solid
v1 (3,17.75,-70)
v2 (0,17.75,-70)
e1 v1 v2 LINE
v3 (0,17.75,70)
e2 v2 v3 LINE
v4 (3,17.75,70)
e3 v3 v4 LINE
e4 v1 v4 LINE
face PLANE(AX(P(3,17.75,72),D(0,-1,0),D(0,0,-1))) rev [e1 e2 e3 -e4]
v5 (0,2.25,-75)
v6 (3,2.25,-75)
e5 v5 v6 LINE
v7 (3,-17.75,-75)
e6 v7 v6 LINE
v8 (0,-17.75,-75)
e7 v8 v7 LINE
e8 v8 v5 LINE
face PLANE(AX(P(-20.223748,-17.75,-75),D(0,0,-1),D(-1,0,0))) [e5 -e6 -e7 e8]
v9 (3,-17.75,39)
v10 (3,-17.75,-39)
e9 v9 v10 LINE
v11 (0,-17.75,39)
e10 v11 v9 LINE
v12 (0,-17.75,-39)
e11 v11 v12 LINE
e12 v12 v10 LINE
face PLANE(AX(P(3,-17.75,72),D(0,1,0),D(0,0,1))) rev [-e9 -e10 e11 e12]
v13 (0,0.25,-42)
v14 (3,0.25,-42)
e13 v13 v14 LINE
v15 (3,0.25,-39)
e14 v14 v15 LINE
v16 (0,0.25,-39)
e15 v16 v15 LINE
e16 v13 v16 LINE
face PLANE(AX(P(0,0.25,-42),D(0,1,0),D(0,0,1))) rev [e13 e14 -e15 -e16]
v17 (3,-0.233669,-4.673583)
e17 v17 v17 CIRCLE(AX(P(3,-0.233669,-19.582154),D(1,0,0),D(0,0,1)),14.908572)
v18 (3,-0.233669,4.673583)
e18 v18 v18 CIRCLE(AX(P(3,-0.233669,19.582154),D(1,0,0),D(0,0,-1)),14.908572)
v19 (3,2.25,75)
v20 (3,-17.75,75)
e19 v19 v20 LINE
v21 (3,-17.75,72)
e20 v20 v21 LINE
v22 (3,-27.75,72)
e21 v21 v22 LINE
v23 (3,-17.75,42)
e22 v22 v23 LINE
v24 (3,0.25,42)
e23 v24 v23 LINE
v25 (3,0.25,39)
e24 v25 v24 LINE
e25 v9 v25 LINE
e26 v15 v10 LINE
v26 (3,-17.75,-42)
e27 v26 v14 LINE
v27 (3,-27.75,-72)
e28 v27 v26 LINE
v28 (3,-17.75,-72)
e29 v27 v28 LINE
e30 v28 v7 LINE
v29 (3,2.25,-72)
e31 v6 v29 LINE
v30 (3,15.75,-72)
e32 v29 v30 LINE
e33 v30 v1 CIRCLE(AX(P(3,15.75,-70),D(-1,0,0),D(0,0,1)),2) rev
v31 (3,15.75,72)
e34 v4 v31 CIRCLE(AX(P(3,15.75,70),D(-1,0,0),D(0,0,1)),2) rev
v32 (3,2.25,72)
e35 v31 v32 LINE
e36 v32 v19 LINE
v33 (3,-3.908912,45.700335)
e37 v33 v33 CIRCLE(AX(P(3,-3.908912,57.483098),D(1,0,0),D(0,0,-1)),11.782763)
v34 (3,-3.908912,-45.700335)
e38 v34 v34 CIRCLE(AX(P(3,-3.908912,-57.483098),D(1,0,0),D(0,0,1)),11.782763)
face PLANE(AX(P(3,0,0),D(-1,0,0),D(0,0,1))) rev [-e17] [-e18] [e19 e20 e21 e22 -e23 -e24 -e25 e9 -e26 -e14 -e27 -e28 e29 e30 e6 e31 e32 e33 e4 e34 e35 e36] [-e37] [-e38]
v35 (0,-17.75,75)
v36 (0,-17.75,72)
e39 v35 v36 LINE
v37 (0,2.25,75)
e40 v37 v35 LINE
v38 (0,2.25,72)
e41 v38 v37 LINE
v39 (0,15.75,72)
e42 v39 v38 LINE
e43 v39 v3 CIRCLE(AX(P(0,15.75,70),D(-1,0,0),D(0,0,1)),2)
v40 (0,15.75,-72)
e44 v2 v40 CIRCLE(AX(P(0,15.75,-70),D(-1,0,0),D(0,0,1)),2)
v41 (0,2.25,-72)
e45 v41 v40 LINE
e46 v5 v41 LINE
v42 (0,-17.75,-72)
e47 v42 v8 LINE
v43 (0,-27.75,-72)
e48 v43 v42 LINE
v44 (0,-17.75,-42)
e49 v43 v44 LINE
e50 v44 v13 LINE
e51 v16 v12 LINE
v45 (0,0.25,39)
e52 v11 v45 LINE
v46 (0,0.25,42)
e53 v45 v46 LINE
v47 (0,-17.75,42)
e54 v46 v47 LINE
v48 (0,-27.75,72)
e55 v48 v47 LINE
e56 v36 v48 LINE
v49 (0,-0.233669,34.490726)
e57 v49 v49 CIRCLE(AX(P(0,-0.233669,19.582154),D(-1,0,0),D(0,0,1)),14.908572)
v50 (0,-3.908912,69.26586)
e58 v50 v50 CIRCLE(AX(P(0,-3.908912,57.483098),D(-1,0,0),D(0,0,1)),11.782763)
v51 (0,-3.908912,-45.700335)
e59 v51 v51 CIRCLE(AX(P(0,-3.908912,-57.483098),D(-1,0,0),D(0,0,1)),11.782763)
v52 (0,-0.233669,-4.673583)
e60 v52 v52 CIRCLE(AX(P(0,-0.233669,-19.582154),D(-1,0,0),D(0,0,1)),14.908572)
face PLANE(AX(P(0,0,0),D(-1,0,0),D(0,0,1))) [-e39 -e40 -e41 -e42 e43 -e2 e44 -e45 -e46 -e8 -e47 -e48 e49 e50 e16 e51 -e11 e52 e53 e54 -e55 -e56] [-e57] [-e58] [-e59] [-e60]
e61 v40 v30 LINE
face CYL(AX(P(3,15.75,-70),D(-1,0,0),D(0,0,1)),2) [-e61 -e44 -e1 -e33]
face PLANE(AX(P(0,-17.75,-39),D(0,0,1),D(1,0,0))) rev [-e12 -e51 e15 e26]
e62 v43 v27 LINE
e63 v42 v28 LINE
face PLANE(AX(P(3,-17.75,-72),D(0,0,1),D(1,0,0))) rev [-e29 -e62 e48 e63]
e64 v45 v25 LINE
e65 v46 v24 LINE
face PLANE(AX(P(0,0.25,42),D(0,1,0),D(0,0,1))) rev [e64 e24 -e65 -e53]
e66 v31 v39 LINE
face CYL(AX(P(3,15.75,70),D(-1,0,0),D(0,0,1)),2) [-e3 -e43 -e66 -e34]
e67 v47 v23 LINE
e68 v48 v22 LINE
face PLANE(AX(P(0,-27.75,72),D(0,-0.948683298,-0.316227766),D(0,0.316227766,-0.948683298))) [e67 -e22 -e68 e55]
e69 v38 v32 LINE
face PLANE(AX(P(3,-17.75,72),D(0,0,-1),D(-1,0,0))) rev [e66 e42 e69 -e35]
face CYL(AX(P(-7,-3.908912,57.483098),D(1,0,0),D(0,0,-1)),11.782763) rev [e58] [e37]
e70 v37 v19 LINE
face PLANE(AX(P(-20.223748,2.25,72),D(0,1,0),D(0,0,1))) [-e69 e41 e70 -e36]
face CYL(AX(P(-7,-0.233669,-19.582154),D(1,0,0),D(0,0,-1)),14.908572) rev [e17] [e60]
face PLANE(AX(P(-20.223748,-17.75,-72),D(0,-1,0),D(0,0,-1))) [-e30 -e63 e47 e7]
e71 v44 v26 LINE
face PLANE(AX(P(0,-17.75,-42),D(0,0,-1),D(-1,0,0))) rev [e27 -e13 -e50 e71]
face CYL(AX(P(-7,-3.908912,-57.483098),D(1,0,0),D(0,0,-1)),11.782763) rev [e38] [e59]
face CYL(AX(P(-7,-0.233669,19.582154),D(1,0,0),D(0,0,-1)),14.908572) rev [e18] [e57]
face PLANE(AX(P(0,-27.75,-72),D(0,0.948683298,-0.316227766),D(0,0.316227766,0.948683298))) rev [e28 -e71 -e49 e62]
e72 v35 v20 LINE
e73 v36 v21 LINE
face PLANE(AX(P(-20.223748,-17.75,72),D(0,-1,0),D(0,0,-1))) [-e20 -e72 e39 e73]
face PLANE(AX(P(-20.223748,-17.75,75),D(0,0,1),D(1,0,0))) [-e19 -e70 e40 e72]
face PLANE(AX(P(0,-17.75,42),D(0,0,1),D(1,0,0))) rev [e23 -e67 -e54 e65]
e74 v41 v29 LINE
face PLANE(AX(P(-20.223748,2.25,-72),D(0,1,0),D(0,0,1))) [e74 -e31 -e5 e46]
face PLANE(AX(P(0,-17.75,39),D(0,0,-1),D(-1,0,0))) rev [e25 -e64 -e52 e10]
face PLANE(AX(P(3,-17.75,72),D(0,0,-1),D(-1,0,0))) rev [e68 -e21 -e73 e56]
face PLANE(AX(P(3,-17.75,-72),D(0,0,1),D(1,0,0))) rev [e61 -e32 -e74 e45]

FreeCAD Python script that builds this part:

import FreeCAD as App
import Part
import Sketcher

V = App.Vector


def edges_at(feature, points):
    """Names of the edges that pass closest to the given points."""
    edges = feature.Shape.Edges
    near = lambda p: min(range(len(edges)), key=lambda i: edges[i].distToShape(Part.Vertex(*p))[0])
    return sorted({f"Edge{near(p) + 1}" for p in points})


def add_polygon(sketch, points):
    """Adds a closed chain of lines whose ends are joined by coincident constraints."""
    first, n = sketch.GeometryCount, len(points)
    for a, b in zip(points, points[1:] + points[:1]):
        sketch.addGeometry(Part.LineSegment(App.Vector(*a, 0), App.Vector(*b, 0)), False)
    for i in range(n):
        sketch.addConstraint(Sketcher.Constraint("Coincident", first + i, 2, first + (i + 1) % n, 1))

doc = App.newDocument("Part")
body = doc.addObject("PartDesign::Body", "Body")

sketch1 = body.newObject("Sketcher::SketchObject", "Sketch")
sketch1.AttachmentSupport = (doc.getObject("YZ_Plane"), [""])
sketch1.MapMode = "FlatFace"
add_polygon(sketch1, [(18, 72), (-18, 72), (-18, -72), (18, -72)])
sketch1.addConstraint(Sketcher.Constraint("Horizontal", 0))
sketch1.addConstraint(Sketcher.Constraint("Vertical", 1))
sketch1.addConstraint(Sketcher.Constraint("Horizontal", 2))
sketch1.addConstraint(Sketcher.Constraint("Vertical", 3))
sketch1.addConstraint(Sketcher.Constraint("Symmetric", 0, 2, 2, 2, -1, 1))
sketch1.addConstraint(Sketcher.Constraint("DistanceY", 1, 2, 1, 1, 144.0))
sketch1.addConstraint(Sketcher.Constraint("DistanceX", 0, 2, 0, 1, 35.5))
pad1 = body.newObject("PartDesign::Pad", "Pad")
pad1.Profile = sketch1
pad1.Length = 3
doc.recompute()

fillet = body.newObject("PartDesign::Fillet", "Fillet")
fillet.Base = (pad1, edges_at(pad1, [(1.5, 17.75, 72), (1.5, 17.75, -72)]))
fillet.Radius = 2

sketch2 = body.newObject("Sketcher::SketchObject", "Sketch001")
sketch2.AttachmentSupport = (doc.getObject("YZ_Plane"), [""])
sketch2.MapMode = "FlatFace"
sketch2.AttachmentOffset = App.Placement(V(0, 0, 3), App.Rotation())
add_polygon(sketch2, [(0.2, 42), (-17.8, 42), (-17.8, 39), (0.2, 39)])
add_polygon(sketch2, [(0.2, -39), (-17.8, -39), (-17.8, -42), (0.2, -42)])
sketch2.addConstraint(Sketcher.Constraint("Horizontal", 0))
sketch2.addConstraint(Sketcher.Constraint("Vertical", 1))
sketch2.addConstraint(Sketcher.Constraint("Horizontal", 2))
sketch2.addConstraint(Sketcher.Constraint("Vertical", 3))
sketch2.addConstraint(Sketcher.Constraint("Horizontal", 4))
sketch2.addConstraint(Sketcher.Constraint("Vertical", 5))
sketch2.addConstraint(Sketcher.Constraint("Horizontal", 6))
sketch2.addConstraint(Sketcher.Constraint("Vertical", 7))
sketch2.addConstraint(Sketcher.Constraint("Symmetric", 1, 2, 4, 2, -1))
sketch2.addConstraint(Sketcher.Constraint("Symmetric", 3, 2, 6, 2, -1))
sketch2.addConstraint(Sketcher.Constraint("DistanceX", 0, 2, 0, 1, 18.0))
sketch2.addConstraint(Sketcher.Constraint("DistanceY", 1, 2, 1, 1, 3.0))
sketch2.addConstraint(Sketcher.Constraint("DistanceY", -1, 1, 0, 2, 42.0))
sketch2.addConstraint(Sketcher.Constraint("DistanceX", 0, 2, -1, 1, 17.75))
pocket1 = body.newObject("PartDesign::Pocket", "Pocket")
pocket1.Profile = sketch2
pocket1.Length = 3

sketch3 = body.newObject("Sketcher::SketchObject", "Sketch002")
sketch3.AttachmentSupport = (doc.getObject("YZ_Plane"), [""])
sketch3.MapMode = "FlatFace"
sketch3.AttachmentOffset = App.Placement(V(0, 0, 3), App.Rotation())
add_polygon(sketch3, [(-18, 72), (-28, 72), (-18, 42)])
sketch3.addConstraint(Sketcher.Constraint("Horizontal", 0))
sketch3.addConstraint(Sketcher.Constraint("Vertical", 2))
sketch3.addConstraint(Sketcher.Constraint("DistanceX", 0, 2, 0, 1, 10.0))
sketch3.addConstraint(Sketcher.Constraint("DistanceY", 2, 1, 2, 2, 30.0))
sketch3.addConstraint(Sketcher.Constraint("DistanceY", -1, 1, 0, 2, 72.0))
sketch3.addConstraint(Sketcher.Constraint("DistanceX", 0, 2, -1, 1, 27.75))
pad2 = body.newObject("PartDesign::Pad", "Pad001")
pad2.Profile = sketch3
pad2.Length = 3
pad2.Reversed = True
doc.recompute()

mirrored = body.newObject("PartDesign::Mirrored", "Mirrored")
mirrored.Originals = [pad2]
mirrored.MirrorPlane = (doc.getObject("XY_Plane"), [""])
body.Tip = mirrored

sketch4 = body.newObject("Sketcher::SketchObject", "Sketch003")
sketch4.AttachmentSupport = (doc.getObject("YZ_Plane"), [""])
sketch4.MapMode = "FlatFace"
sketch4.AttachmentOffset = App.Placement(V(0, 0, 3), App.Rotation())
add_polygon(sketch4, [(2.2, 75), (-17.8, 75), (-17.8, 72), (2.2, 72)])
add_polygon(sketch4, [(2.2, -72), (-17.8, -72), (-17.8, -75), (2.2, -75)])
sketch4.addConstraint(Sketcher.Constraint("Horizontal", 0))
sketch4.addConstraint(Sketcher.Constraint("Vertical", 1))
sketch4.addConstraint(Sketcher.Constraint("Horizontal", 2))
sketch4.addConstraint(Sketcher.Constraint("Vertical", 3))
sketch4.addConstraint(Sketcher.Constraint("Horizontal", 4))
sketch4.addConstraint(Sketcher.Constraint("Vertical", 5))
sketch4.addConstraint(Sketcher.Constraint("Horizontal", 6))
sketch4.addConstraint(Sketcher.Constraint("Vertical", 7))
sketch4.addConstraint(Sketcher.Constraint("Symmetric", 1, 2, 4, 2, -1))
sketch4.addConstraint(Sketcher.Constraint("Symmetric", 3, 2, 6, 2, -1))
sketch4.addConstraint(Sketcher.Constraint("DistanceX", 0, 2, 0, 1, 20.0))
sketch4.addConstraint(Sketcher.Constraint("DistanceY", 1, 2, 1, 1, 3.0))
sketch4.addConstraint(Sketcher.Constraint("DistanceY", -1, 1, 0, 2, 75.0))
sketch4.addConstraint(Sketcher.Constraint("DistanceX", 0, 2, -1, 1, 17.75))
pad3 = body.newObject("PartDesign::Pad", "Pad002")
pad3.Profile = sketch4
pad3.Length = 3
pad3.Reversed = True

sketch5 = body.newObject("Sketcher::SketchObject", "Sketch004")
sketch5.AttachmentSupport = (doc.getObject("YZ_Plane"), [""])
sketch5.MapMode = "FlatFace"
sketch5.AttachmentOffset = App.Placement(V(0, 0, 3), App.Rotation())
sketch5.addGeometry(Part.Circle(V(-4, 57, 0), V(0, 0, 1), 12), False)
sketch5.addGeometry(Part.Circle(V(0, 20, 0), V(0, 0, 1), 15), False)
sketch5.addGeometry(Part.Circle(V(-4, -57, 0), V(0, 0, 1), 12), False)
sketch5.addGeometry(Part.Circle(V(0, -20, 0), V(0, 0, 1), 15), False)
sketch5.addConstraint(Sketcher.Constraint("Equal", 0, 2))
sketch5.addConstraint(Sketcher.Constraint("Equal", 1, 3))
sketch5.addConstraint(Sketcher.Constraint("Symmetric", 0, 3, 2, 3, -1))
sketch5.addConstraint(Sketcher.Constraint("Symmetric", 1, 3, 3, 3, -1))
sketch5.addConstraint(Sketcher.Constraint("Diameter", 0, 23.565526))
sketch5.addConstraint(Sketcher.Constraint("Diameter", 1, 29.817143))
sketch5.addConstraint(Sketcher.Constraint("DistanceX", 1, 3, -1, 1, 0.233669))
sketch5.addConstraint(Sketcher.Constraint("DistanceY", 2, 3, 1, 3, 77.065252))
sketch5.addConstraint(Sketcher.Constraint("DistanceY", 3, 3, 1, 3, 39.164308))
sketch5.addConstraint(Sketcher.Constraint("DistanceX", 0, 3, -1, 1, 3.908912))
pocket2 = body.newObject("PartDesign::Pocket", "Pocket001")
pocket2.Profile = sketch5
pocket2.Length = 10

doc.recompute()
